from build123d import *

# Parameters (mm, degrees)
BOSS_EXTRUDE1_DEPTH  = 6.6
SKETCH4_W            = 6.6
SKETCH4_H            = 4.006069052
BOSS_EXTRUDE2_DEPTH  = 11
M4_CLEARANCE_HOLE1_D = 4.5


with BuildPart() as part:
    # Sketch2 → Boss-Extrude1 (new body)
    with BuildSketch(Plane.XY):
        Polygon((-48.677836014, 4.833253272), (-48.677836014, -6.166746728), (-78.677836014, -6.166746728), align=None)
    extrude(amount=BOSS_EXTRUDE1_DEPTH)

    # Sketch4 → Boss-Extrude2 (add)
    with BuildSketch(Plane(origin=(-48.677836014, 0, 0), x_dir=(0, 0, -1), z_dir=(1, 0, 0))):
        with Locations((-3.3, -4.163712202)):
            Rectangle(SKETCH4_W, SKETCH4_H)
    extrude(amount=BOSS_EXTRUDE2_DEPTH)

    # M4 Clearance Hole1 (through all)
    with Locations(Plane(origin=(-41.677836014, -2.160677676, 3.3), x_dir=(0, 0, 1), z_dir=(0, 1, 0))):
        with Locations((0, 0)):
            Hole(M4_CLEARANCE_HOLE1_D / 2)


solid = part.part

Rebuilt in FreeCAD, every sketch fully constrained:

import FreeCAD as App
import Part
import Sketcher

doc = App.newDocument("Part")
body = doc.addObject("PartDesign::Body", "Body")

# Sketch on XY plane
sketch1 = body.newObject("Sketcher::SketchObject", "Sketch")
sketch1.AttachmentSupport = (doc.getObject("XY_Plane"), [""])
sketch1.MapMode = "FlatFace"
sketch1.addGeometry(Part.LineSegment(App.Vector(-49, -6, 0), App.Vector(-49, 5, 0)), False)
sketch1.addGeometry(Part.LineSegment(App.Vector(-49, 5, 0), App.Vector(-79, -6, 0)), False)
sketch1.addGeometry(Part.LineSegment(App.Vector(-79, -6, 0), App.Vector(-49, -6, 0)), False)
sketch1.addConstraint(Sketcher.Constraint("Coincident", 0, 2, 1, 1))
sketch1.addConstraint(Sketcher.Constraint("Coincident", 1, 2, 2, 1))
sketch1.addConstraint(Sketcher.Constraint("Coincident", 2, 2, 0, 1))
sketch1.addConstraint(Sketcher.Constraint("Vertical", 0))
sketch1.addConstraint(Sketcher.Constraint("Horizontal", 2))
sketch1.addConstraint(Sketcher.Constraint("DistanceX", 2, 1, 2, 2, 30.0))
sketch1.addConstraint(Sketcher.Constraint("DistanceY", 0, 1, 0, 2, 11.0))
sketch1.addConstraint(Sketcher.Constraint("DistanceX", 0, 2, -1, 1, 48.677836))
sketch1.addConstraint(Sketcher.Constraint("DistanceY", -1, 1, 0, 2, 4.833253))
pad1 = body.newObject("PartDesign::Pad", "Pad")
pad1.Profile = sketch1
pad1.Length = 6.6

# Sketch on YZ plane
sketch2 = body.newObject("Sketcher::SketchObject", "Sketch001")
sketch2.AttachmentSupport = (doc.getObject("YZ_Plane"), [""])
sketch2.MapMode = "FlatFace"
sketch2.AttachmentOffset = App.Placement(App.Vector(0, 0, -48.677836), App.Rotation())
sketch2.addGeometry(Part.LineSegment(App.Vector(-2.2, 6.6, 0), App.Vector(-6.2, 6.6, 0)), False)
sketch2.addGeometry(Part.LineSegment(App.Vector(-6.2, 6.6, 0), App.Vector(-6.2, 0, 0)), False)
sketch2.addGeometry(Part.LineSegment(App.Vector(-6.2, 0, 0), App.Vector(-2.2, 0, 0)), False)
sketch2.addGeometry(Part.LineSegment(App.Vector(-2.2, 0, 0), App.Vector(-2.2, 6.6, 0)), False)
sketch2.addConstraint(Sketcher.Constraint("Coincident", 0, 2, 1, 1))
sketch2.addConstraint(Sketcher.Constraint("Coincident", 1, 2, 2, 1))
sketch2.addConstraint(Sketcher.Constraint("Coincident", 2, 2, 3, 1))
sketch2.addConstraint(Sketcher.Constraint("Coincident", 3, 2, 0, 1))
sketch2.addConstraint(Sketcher.Constraint("Horizontal", 0))
sketch2.addConstraint(Sketcher.Constraint("Vertical", 1))
sketch2.addConstraint(Sketcher.Constraint("Horizontal", 2))
sketch2.addConstraint(Sketcher.Constraint("Vertical", 3))
sketch2.addConstraint(Sketcher.Constraint("PointOnObject", 1, 2, -1))
sketch2.addConstraint(Sketcher.Constraint("DistanceY", 1, 2, 1, 1, 6.6))
sketch2.addConstraint(Sketcher.Constraint("DistanceX", 0, 2, 0, 1, 4.006069))
sketch2.addConstraint(Sketcher.Constraint("DistanceX", 0, 2, -1, 1, 6.166747))
pad2 = body.newObject("PartDesign::Pad", "Pad001")
pad2.Profile = sketch2
pad2.Length = 11

# Sketch on XZ plane
sketch3 = body.newObject("Sketcher::SketchObject", "Sketch002")
sketch3.AttachmentSupport = (doc.getObject("XZ_Plane"), [""])
sketch3.MapMode = "FlatFace"
sketch3.AttachmentOffset = App.Placement(App.Vector(0, 0, 2.160678), App.Rotation())
sketch3.addGeometry(Part.Circle(App.Vector(-41.7, 3.3, 0), App.Vector(0, 0, 1), 2.2), False)
sketch3.addConstraint(Sketcher.Constraint("Diameter", 0, 4.5))
sketch3.addConstraint(Sketcher.Constraint("DistanceY", -1, 1, 0, 3, 3.3))
sketch3.addConstraint(Sketcher.Constraint("DistanceX", 0, 3, -1, 1, 41.677836))
doc.recompute()
hole = body.newObject("PartDesign::Hole", "Hole")
hole.Profile = sketch3
hole.ThreadType = "None"
hole.Diameter = 4.5
hole.DepthType = "ThroughAll"
hole.Reversed = True

doc.recompute()
